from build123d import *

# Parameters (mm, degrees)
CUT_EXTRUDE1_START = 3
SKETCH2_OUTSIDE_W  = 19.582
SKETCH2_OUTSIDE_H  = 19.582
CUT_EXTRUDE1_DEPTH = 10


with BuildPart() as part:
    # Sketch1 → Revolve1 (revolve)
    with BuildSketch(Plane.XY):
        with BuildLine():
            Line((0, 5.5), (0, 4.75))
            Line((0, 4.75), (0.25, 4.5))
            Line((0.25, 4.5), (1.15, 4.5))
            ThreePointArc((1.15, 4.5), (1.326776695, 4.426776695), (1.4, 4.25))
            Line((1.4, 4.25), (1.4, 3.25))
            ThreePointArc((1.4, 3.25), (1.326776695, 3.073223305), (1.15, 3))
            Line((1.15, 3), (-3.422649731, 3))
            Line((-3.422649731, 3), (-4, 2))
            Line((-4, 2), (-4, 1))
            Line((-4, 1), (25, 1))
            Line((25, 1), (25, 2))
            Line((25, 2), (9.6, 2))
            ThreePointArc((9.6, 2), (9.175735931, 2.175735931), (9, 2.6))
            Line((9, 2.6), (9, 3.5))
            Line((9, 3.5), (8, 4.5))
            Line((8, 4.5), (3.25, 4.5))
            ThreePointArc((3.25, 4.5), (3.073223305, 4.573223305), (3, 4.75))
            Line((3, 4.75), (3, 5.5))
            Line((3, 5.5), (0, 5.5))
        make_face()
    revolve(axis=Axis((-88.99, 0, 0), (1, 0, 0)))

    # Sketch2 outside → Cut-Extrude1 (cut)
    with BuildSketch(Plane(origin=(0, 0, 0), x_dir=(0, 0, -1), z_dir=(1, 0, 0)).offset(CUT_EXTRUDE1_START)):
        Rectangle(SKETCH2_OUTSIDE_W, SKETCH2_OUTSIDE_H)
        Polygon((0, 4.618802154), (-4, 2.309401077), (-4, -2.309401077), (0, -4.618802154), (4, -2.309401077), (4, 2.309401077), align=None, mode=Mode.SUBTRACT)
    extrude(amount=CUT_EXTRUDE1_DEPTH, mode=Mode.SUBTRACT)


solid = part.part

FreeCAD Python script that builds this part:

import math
import FreeCAD as App
import Part
import Sketcher
from FreeCAD import Vector
Q = App.Units.Quantity

doc = App.newDocument("Part")
body = doc.addObject("PartDesign::Body", "Body")

sketch1 = doc.addObject("Sketcher::SketchObject", "Sketch")
body.addObject(sketch1)
sketch1.AttachmentSupport = (doc.XY_Plane, [""])
sketch1.MapMode = "FlatFace"
sketch1.addGeometry(Part.LineSegment(Vector(0, 5.5, 0), Vector(0, 4.75, 0)), False)
sketch1.addGeometry(Part.LineSegment(Vector(0, 4.75, 0), Vector(0.25, 4.5, 0)), False)
sketch1.addGeometry(Part.LineSegment(Vector(0.25, 4.5, 0), Vector(1.15, 4.5, 0)), False)
sketch1.addGeometry(Part.ArcOfCircle(Part.Circle(Vector(1.15, 4.25, 0), Vector(0, 0, 1), 0.25), math.radians(0), math.radians(90)), False)
sketch1.addGeometry(Part.LineSegment(Vector(1.4, 4.25, 0), Vector(1.4, 3.25, 0)), False)
sketch1.addGeometry(Part.ArcOfCircle(Part.Circle(Vector(1.15, 3.25, 0), Vector(0, 0, 1), 0.25), math.radians(-90), math.radians(0)), False)
sketch1.addGeometry(Part.LineSegment(Vector(1.15, 3, 0), Vector(-3.42265, 3, 0)), False)
sketch1.addGeometry(Part.LineSegment(Vector(-3.42265, 3, 0), Vector(-4, 2, 0)), False)
sketch1.addGeometry(Part.LineSegment(Vector(-4, 2, 0), Vector(-4, 1, 0)), False)
sketch1.addGeometry(Part.LineSegment(Vector(-4, 1, 0), Vector(25, 1, 0)), False)
sketch1.addGeometry(Part.LineSegment(Vector(25, 1, 0), Vector(25, 2, 0)), False)
sketch1.addGeometry(Part.LineSegment(Vector(25, 2, 0), Vector(9.6, 2, 0)), False)
sketch1.addGeometry(Part.ArcOfCircle(Part.Circle(Vector(9.6, 2.6, 0), Vector(0, 0, 1), 0.6), math.radians(180), math.radians(270)), False)
sketch1.addGeometry(Part.LineSegment(Vector(9, 2.6, 0), Vector(9, 3.5, 0)), False)
sketch1.addGeometry(Part.LineSegment(Vector(9, 3.5, 0), Vector(8, 4.5, 0)), False)
sketch1.addGeometry(Part.LineSegment(Vector(8, 4.5, 0), Vector(3.25, 4.5, 0)), False)
sketch1.addGeometry(Part.ArcOfCircle(Part.Circle(Vector(3.25, 4.75, 0), Vector(0, 0, 1), 0.25), math.radians(-180), math.radians(-90)), False)
sketch1.addGeometry(Part.LineSegment(Vector(3, 4.75, 0), Vector(3, 5.5, 0)), False)
sketch1.addGeometry(Part.LineSegment(Vector(3, 5.5, 0), Vector(0, 5.5, 0)), False)
sketch1.addConstraint(Sketcher.Constraint("Coincident", 0, 2, 1, 1))
sketch1.addConstraint(Sketcher.Constraint("Coincident", 1, 2, 2, 1))
sketch1.addConstraint(Sketcher.Constraint("Tangent", 2, 2, 3, 2))
sketch1.addConstraint(Sketcher.Constraint("Tangent", 3, 1, 4, 1))
sketch1.addConstraint(Sketcher.Constraint("Tangent", 4, 2, 5, 2))
sketch1.addConstraint(Sketcher.Constraint("Tangent", 5, 1, 6, 1))
sketch1.addConstraint(Sketcher.Constraint("Coincident", 6, 2, 7, 1))
sketch1.addConstraint(Sketcher.Constraint("Coincident", 7, 2, 8, 1))
sketch1.addConstraint(Sketcher.Constraint("Coincident", 8, 2, 9, 1))
sketch1.addConstraint(Sketcher.Constraint("Coincident", 9, 2, 10, 1))
sketch1.addConstraint(Sketcher.Constraint("Coincident", 10, 2, 11, 1))
sketch1.addConstraint(Sketcher.Constraint("Tangent", 11, 2, 12, 2))
sketch1.addConstraint(Sketcher.Constraint("Tangent", 12, 1, 13, 1))
sketch1.addConstraint(Sketcher.Constraint("Coincident", 13, 2, 14, 1))
sketch1.addConstraint(Sketcher.Constraint("Coincident", 14, 2, 15, 1))
sketch1.addConstraint(Sketcher.Constraint("Tangent", 15, 2, 16, 2))
sketch1.addConstraint(Sketcher.Constraint("Tangent", 16, 1, 17, 1))
sketch1.addConstraint(Sketcher.Constraint("Coincident", 17, 2, 18, 1))
sketch1.addConstraint(Sketcher.Constraint("Coincident", 18, 2, 0, 1))
sketch1.addConstraint(Sketcher.Constraint("Vertical", 0))
sketch1.addConstraint(Sketcher.Constraint("Horizontal", 2))
sketch1.addConstraint(Sketcher.Constraint("Vertical", 4))
sketch1.addConstraint(Sketcher.Constraint("Horizontal", 6))
sketch1.addConstraint(Sketcher.Constraint("Vertical", 8))
sketch1.addConstraint(Sketcher.Constraint("Horizontal", 9))
sketch1.addConstraint(Sketcher.Constraint("Vertical", 10))
sketch1.addConstraint(Sketcher.Constraint("Horizontal", 11))
sketch1.addConstraint(Sketcher.Constraint("Vertical", 13))
sketch1.addConstraint(Sketcher.Constraint("Horizontal", 15))
sketch1.addConstraint(Sketcher.Constraint("Vertical", 17))
sketch1.addConstraint(Sketcher.Constraint("Horizontal", 18))
sketch1.addConstraint(Sketcher.Constraint("Equal", 3, 5))
sketch1.addConstraint(Sketcher.Constraint("Equal", 5, 16))
sketch1.addConstraint(Sketcher.Constraint("PointOnObject", 0, 2, -2))
sketch1.addConstraint(Sketcher.Constraint("Parallel", 1, 14))
sketch1.addConstraint(Sketcher.Constraint("Horizontal", 16, 3, 0, 2))
sketch1.addConstraint(Sketcher.Constraint("Horizontal", 7, 2, 10, 2))
sketch1.addConstraint(Sketcher.Constraint("Horizontal", 2, 2, 14, 2))
sketch1.addConstraint(Sketcher.Constraint("Equal", 4, 8))
sketch1.addConstraint(Sketcher.Constraint("Equal", 2, 13))
sketch1.addConstraint(Sketcher.Constraint("Radius", 12, 0.6))
sketch1.addConstraint(Sketcher.Constraint("DistanceX", 9, 1, 9, 2, 29.0))
sketch1.addConstraint(Sketcher.Constraint("DistanceX", 18, 2, 18, 1, 3.0))
sketch1.addConstraint(Sketcher.Constraint("DistanceY", 4, 2, 4, 1, 1.0))
sketch1.addConstraint(Sketcher.Constraint("Angle", 1, Q("-45 deg")))
sketch1.addConstraint(Sketcher.Constraint("Angle", 7, Q("-120 deg")))
sketch1.addConstraint(Sketcher.Constraint("Radius", 3, 0.25))
sketch1.addConstraint(Sketcher.Constraint("DistanceX", 2, 1, 2, 2, 0.9))
sketch1.addConstraint(Sketcher.Constraint("DistanceX", 11, 2, 11, 1, 15.4))
sketch1.addConstraint(Sketcher.Constraint("DistanceY", -1, 1, 5, 1, 3.0))
sketch1.addConstraint(Sketcher.Constraint("DistanceX", 7, 2, -1, 1, 4.0))
sketch1.addConstraint(Sketcher.Constraint("DistanceY", -1, 1, 7, 2, 2.0))
sketch1.addConstraint(Sketcher.Constraint("DistanceY", 15, 2, 17, 2, 1.0))
revolution = doc.addObject("PartDesign::Revolution", "Revolution")
body.addObject(revolution)
revolution.Profile = sketch1
revolution.ReferenceAxis = (sketch1, ["H_Axis"])
revolution.Angle = 360

sketch2 = doc.addObject("Sketcher::SketchObject", "Sketch001")
body.addObject(sketch2)
sketch2.AttachmentSupport = (doc.YZ_Plane, [""])
sketch2.MapMode = "FlatFace"
sketch2.AttachmentOffset = App.Placement(Vector(0, 0, 3), App.Rotation())
sketch2.addGeometry(Part.LineSegment(Vector(9.791, 9.791, 0), Vector(-9.791, 9.791, 0)), False)
sketch2.addGeometry(Part.LineSegment(Vector(-9.791, 9.791, 0), Vector(-9.791, -9.791, 0)), False)
sketch2.addGeometry(Part.LineSegment(Vector(-9.791, -9.791, 0), Vector(9.791, -9.791, 0)), False)
sketch2.addGeometry(Part.LineSegment(Vector(9.791, -9.791, 0), Vector(9.791, 9.791, 0)), False)
sketch2.addGeometry(Part.LineSegment(Vector(2.309401, 4, 0), Vector(4.618802, 0, 0)), False)
sketch2.addGeometry(Part.LineSegment(Vector(4.618802, 0, 0), Vector(2.309401, -4, 0)), False)
sketch2.addGeometry(Part.LineSegment(Vector(2.309401, -4, 0), Vector(-2.309401, -4, 0)), False)
sketch2.addGeometry(Part.LineSegment(Vector(-2.309401, -4, 0), Vector(-4.618802, 0, 0)), False)
sketch2.addGeometry(Part.LineSegment(Vector(-4.618802, 0, 0), Vector(-2.309401, 4, 0)), False)
sketch2.addGeometry(Part.LineSegment(Vector(-2.309401, 4, 0), Vector(2.309401, 4, 0)), False)
sketch2.addConstraint(Sketcher.Constraint("Coincident", 0, 2, 1, 1))
sketch2.addConstraint(Sketcher.Constraint("Coincident", 1, 2, 2, 1))
sketch2.addConstraint(Sketcher.Constraint("Coincident", 2, 2, 3, 1))
sketch2.addConstraint(Sketcher.Constraint("Coincident", 3, 2, 0, 1))
sketch2.addConstraint(Sketcher.Constraint("Coincident", 4, 2, 5, 1))
sketch2.addConstraint(Sketcher.Constraint("Coincident", 5, 2, 6, 1))
sketch2.addConstraint(Sketcher.Constraint("Coincident", 6, 2, 7, 1))
sketch2.addConstraint(Sketcher.Constraint("Coincident", 7, 2, 8, 1))
sketch2.addConstraint(Sketcher.Constraint("Coincident", 8, 2, 9, 1))
sketch2.addConstraint(Sketcher.Constraint("Coincident", 9, 2, 4, 1))
sketch2.addConstraint(Sketcher.Constraint("Horizontal", 0))
sketch2.addConstraint(Sketcher.Constraint("Vertical", 1))
sketch2.addConstraint(Sketcher.Constraint("Horizontal", 2))
sketch2.addConstraint(Sketcher.Constraint("Vertical", 3))
sketch2.addConstraint(Sketcher.Constraint("Horizontal", 6))
sketch2.addConstraint(Sketcher.Constraint("Horizontal", 9))
sketch2.addConstraint(Sketcher.Constraint("Symmetric", 0, 2, 2, 2, -1, 1))
sketch2.addConstraint(Sketcher.Constraint("Symmetric", 4, 2, 7, 2, -1, 1))
sketch2.addConstraint(Sketcher.Constraint("Symmetric", 5, 2, 8, 2, -1, 1))
sketch2.addConstraint(Sketcher.Constraint("PointOnObject", 4, 2, -1))
sketch2.addConstraint(Sketcher.Constraint("Parallel", 4, 7))
sketch2.addConstraint(Sketcher.Constraint("Vertical", 6, 2, 8, 2))
sketch2.addConstraint(Sketcher.Constraint("Equal", 2, 1))
sketch2.addConstraint(Sketcher.Constraint("Angle", 4, Q("-60 deg")))
sketch2.addConstraint(Sketcher.Constraint("DistanceY", 5, 2, -1, 1, 4.0))
sketch2.addConstraint(Sketcher.Constraint("DistanceX", 0, 2, 0, 1, 19.582))
sketch2.addConstraint(Sketcher.Constraint("DistanceX", -1, 1, 5, 2, 2.309401))
pocket1 = doc.addObject("PartDesign::Pocket", "Pocket")
body.addObject(pocket1)
pocket1.Profile = sketch2
pocket1.Length = 10
pocket1.Reversed = True

doc.recompute()
